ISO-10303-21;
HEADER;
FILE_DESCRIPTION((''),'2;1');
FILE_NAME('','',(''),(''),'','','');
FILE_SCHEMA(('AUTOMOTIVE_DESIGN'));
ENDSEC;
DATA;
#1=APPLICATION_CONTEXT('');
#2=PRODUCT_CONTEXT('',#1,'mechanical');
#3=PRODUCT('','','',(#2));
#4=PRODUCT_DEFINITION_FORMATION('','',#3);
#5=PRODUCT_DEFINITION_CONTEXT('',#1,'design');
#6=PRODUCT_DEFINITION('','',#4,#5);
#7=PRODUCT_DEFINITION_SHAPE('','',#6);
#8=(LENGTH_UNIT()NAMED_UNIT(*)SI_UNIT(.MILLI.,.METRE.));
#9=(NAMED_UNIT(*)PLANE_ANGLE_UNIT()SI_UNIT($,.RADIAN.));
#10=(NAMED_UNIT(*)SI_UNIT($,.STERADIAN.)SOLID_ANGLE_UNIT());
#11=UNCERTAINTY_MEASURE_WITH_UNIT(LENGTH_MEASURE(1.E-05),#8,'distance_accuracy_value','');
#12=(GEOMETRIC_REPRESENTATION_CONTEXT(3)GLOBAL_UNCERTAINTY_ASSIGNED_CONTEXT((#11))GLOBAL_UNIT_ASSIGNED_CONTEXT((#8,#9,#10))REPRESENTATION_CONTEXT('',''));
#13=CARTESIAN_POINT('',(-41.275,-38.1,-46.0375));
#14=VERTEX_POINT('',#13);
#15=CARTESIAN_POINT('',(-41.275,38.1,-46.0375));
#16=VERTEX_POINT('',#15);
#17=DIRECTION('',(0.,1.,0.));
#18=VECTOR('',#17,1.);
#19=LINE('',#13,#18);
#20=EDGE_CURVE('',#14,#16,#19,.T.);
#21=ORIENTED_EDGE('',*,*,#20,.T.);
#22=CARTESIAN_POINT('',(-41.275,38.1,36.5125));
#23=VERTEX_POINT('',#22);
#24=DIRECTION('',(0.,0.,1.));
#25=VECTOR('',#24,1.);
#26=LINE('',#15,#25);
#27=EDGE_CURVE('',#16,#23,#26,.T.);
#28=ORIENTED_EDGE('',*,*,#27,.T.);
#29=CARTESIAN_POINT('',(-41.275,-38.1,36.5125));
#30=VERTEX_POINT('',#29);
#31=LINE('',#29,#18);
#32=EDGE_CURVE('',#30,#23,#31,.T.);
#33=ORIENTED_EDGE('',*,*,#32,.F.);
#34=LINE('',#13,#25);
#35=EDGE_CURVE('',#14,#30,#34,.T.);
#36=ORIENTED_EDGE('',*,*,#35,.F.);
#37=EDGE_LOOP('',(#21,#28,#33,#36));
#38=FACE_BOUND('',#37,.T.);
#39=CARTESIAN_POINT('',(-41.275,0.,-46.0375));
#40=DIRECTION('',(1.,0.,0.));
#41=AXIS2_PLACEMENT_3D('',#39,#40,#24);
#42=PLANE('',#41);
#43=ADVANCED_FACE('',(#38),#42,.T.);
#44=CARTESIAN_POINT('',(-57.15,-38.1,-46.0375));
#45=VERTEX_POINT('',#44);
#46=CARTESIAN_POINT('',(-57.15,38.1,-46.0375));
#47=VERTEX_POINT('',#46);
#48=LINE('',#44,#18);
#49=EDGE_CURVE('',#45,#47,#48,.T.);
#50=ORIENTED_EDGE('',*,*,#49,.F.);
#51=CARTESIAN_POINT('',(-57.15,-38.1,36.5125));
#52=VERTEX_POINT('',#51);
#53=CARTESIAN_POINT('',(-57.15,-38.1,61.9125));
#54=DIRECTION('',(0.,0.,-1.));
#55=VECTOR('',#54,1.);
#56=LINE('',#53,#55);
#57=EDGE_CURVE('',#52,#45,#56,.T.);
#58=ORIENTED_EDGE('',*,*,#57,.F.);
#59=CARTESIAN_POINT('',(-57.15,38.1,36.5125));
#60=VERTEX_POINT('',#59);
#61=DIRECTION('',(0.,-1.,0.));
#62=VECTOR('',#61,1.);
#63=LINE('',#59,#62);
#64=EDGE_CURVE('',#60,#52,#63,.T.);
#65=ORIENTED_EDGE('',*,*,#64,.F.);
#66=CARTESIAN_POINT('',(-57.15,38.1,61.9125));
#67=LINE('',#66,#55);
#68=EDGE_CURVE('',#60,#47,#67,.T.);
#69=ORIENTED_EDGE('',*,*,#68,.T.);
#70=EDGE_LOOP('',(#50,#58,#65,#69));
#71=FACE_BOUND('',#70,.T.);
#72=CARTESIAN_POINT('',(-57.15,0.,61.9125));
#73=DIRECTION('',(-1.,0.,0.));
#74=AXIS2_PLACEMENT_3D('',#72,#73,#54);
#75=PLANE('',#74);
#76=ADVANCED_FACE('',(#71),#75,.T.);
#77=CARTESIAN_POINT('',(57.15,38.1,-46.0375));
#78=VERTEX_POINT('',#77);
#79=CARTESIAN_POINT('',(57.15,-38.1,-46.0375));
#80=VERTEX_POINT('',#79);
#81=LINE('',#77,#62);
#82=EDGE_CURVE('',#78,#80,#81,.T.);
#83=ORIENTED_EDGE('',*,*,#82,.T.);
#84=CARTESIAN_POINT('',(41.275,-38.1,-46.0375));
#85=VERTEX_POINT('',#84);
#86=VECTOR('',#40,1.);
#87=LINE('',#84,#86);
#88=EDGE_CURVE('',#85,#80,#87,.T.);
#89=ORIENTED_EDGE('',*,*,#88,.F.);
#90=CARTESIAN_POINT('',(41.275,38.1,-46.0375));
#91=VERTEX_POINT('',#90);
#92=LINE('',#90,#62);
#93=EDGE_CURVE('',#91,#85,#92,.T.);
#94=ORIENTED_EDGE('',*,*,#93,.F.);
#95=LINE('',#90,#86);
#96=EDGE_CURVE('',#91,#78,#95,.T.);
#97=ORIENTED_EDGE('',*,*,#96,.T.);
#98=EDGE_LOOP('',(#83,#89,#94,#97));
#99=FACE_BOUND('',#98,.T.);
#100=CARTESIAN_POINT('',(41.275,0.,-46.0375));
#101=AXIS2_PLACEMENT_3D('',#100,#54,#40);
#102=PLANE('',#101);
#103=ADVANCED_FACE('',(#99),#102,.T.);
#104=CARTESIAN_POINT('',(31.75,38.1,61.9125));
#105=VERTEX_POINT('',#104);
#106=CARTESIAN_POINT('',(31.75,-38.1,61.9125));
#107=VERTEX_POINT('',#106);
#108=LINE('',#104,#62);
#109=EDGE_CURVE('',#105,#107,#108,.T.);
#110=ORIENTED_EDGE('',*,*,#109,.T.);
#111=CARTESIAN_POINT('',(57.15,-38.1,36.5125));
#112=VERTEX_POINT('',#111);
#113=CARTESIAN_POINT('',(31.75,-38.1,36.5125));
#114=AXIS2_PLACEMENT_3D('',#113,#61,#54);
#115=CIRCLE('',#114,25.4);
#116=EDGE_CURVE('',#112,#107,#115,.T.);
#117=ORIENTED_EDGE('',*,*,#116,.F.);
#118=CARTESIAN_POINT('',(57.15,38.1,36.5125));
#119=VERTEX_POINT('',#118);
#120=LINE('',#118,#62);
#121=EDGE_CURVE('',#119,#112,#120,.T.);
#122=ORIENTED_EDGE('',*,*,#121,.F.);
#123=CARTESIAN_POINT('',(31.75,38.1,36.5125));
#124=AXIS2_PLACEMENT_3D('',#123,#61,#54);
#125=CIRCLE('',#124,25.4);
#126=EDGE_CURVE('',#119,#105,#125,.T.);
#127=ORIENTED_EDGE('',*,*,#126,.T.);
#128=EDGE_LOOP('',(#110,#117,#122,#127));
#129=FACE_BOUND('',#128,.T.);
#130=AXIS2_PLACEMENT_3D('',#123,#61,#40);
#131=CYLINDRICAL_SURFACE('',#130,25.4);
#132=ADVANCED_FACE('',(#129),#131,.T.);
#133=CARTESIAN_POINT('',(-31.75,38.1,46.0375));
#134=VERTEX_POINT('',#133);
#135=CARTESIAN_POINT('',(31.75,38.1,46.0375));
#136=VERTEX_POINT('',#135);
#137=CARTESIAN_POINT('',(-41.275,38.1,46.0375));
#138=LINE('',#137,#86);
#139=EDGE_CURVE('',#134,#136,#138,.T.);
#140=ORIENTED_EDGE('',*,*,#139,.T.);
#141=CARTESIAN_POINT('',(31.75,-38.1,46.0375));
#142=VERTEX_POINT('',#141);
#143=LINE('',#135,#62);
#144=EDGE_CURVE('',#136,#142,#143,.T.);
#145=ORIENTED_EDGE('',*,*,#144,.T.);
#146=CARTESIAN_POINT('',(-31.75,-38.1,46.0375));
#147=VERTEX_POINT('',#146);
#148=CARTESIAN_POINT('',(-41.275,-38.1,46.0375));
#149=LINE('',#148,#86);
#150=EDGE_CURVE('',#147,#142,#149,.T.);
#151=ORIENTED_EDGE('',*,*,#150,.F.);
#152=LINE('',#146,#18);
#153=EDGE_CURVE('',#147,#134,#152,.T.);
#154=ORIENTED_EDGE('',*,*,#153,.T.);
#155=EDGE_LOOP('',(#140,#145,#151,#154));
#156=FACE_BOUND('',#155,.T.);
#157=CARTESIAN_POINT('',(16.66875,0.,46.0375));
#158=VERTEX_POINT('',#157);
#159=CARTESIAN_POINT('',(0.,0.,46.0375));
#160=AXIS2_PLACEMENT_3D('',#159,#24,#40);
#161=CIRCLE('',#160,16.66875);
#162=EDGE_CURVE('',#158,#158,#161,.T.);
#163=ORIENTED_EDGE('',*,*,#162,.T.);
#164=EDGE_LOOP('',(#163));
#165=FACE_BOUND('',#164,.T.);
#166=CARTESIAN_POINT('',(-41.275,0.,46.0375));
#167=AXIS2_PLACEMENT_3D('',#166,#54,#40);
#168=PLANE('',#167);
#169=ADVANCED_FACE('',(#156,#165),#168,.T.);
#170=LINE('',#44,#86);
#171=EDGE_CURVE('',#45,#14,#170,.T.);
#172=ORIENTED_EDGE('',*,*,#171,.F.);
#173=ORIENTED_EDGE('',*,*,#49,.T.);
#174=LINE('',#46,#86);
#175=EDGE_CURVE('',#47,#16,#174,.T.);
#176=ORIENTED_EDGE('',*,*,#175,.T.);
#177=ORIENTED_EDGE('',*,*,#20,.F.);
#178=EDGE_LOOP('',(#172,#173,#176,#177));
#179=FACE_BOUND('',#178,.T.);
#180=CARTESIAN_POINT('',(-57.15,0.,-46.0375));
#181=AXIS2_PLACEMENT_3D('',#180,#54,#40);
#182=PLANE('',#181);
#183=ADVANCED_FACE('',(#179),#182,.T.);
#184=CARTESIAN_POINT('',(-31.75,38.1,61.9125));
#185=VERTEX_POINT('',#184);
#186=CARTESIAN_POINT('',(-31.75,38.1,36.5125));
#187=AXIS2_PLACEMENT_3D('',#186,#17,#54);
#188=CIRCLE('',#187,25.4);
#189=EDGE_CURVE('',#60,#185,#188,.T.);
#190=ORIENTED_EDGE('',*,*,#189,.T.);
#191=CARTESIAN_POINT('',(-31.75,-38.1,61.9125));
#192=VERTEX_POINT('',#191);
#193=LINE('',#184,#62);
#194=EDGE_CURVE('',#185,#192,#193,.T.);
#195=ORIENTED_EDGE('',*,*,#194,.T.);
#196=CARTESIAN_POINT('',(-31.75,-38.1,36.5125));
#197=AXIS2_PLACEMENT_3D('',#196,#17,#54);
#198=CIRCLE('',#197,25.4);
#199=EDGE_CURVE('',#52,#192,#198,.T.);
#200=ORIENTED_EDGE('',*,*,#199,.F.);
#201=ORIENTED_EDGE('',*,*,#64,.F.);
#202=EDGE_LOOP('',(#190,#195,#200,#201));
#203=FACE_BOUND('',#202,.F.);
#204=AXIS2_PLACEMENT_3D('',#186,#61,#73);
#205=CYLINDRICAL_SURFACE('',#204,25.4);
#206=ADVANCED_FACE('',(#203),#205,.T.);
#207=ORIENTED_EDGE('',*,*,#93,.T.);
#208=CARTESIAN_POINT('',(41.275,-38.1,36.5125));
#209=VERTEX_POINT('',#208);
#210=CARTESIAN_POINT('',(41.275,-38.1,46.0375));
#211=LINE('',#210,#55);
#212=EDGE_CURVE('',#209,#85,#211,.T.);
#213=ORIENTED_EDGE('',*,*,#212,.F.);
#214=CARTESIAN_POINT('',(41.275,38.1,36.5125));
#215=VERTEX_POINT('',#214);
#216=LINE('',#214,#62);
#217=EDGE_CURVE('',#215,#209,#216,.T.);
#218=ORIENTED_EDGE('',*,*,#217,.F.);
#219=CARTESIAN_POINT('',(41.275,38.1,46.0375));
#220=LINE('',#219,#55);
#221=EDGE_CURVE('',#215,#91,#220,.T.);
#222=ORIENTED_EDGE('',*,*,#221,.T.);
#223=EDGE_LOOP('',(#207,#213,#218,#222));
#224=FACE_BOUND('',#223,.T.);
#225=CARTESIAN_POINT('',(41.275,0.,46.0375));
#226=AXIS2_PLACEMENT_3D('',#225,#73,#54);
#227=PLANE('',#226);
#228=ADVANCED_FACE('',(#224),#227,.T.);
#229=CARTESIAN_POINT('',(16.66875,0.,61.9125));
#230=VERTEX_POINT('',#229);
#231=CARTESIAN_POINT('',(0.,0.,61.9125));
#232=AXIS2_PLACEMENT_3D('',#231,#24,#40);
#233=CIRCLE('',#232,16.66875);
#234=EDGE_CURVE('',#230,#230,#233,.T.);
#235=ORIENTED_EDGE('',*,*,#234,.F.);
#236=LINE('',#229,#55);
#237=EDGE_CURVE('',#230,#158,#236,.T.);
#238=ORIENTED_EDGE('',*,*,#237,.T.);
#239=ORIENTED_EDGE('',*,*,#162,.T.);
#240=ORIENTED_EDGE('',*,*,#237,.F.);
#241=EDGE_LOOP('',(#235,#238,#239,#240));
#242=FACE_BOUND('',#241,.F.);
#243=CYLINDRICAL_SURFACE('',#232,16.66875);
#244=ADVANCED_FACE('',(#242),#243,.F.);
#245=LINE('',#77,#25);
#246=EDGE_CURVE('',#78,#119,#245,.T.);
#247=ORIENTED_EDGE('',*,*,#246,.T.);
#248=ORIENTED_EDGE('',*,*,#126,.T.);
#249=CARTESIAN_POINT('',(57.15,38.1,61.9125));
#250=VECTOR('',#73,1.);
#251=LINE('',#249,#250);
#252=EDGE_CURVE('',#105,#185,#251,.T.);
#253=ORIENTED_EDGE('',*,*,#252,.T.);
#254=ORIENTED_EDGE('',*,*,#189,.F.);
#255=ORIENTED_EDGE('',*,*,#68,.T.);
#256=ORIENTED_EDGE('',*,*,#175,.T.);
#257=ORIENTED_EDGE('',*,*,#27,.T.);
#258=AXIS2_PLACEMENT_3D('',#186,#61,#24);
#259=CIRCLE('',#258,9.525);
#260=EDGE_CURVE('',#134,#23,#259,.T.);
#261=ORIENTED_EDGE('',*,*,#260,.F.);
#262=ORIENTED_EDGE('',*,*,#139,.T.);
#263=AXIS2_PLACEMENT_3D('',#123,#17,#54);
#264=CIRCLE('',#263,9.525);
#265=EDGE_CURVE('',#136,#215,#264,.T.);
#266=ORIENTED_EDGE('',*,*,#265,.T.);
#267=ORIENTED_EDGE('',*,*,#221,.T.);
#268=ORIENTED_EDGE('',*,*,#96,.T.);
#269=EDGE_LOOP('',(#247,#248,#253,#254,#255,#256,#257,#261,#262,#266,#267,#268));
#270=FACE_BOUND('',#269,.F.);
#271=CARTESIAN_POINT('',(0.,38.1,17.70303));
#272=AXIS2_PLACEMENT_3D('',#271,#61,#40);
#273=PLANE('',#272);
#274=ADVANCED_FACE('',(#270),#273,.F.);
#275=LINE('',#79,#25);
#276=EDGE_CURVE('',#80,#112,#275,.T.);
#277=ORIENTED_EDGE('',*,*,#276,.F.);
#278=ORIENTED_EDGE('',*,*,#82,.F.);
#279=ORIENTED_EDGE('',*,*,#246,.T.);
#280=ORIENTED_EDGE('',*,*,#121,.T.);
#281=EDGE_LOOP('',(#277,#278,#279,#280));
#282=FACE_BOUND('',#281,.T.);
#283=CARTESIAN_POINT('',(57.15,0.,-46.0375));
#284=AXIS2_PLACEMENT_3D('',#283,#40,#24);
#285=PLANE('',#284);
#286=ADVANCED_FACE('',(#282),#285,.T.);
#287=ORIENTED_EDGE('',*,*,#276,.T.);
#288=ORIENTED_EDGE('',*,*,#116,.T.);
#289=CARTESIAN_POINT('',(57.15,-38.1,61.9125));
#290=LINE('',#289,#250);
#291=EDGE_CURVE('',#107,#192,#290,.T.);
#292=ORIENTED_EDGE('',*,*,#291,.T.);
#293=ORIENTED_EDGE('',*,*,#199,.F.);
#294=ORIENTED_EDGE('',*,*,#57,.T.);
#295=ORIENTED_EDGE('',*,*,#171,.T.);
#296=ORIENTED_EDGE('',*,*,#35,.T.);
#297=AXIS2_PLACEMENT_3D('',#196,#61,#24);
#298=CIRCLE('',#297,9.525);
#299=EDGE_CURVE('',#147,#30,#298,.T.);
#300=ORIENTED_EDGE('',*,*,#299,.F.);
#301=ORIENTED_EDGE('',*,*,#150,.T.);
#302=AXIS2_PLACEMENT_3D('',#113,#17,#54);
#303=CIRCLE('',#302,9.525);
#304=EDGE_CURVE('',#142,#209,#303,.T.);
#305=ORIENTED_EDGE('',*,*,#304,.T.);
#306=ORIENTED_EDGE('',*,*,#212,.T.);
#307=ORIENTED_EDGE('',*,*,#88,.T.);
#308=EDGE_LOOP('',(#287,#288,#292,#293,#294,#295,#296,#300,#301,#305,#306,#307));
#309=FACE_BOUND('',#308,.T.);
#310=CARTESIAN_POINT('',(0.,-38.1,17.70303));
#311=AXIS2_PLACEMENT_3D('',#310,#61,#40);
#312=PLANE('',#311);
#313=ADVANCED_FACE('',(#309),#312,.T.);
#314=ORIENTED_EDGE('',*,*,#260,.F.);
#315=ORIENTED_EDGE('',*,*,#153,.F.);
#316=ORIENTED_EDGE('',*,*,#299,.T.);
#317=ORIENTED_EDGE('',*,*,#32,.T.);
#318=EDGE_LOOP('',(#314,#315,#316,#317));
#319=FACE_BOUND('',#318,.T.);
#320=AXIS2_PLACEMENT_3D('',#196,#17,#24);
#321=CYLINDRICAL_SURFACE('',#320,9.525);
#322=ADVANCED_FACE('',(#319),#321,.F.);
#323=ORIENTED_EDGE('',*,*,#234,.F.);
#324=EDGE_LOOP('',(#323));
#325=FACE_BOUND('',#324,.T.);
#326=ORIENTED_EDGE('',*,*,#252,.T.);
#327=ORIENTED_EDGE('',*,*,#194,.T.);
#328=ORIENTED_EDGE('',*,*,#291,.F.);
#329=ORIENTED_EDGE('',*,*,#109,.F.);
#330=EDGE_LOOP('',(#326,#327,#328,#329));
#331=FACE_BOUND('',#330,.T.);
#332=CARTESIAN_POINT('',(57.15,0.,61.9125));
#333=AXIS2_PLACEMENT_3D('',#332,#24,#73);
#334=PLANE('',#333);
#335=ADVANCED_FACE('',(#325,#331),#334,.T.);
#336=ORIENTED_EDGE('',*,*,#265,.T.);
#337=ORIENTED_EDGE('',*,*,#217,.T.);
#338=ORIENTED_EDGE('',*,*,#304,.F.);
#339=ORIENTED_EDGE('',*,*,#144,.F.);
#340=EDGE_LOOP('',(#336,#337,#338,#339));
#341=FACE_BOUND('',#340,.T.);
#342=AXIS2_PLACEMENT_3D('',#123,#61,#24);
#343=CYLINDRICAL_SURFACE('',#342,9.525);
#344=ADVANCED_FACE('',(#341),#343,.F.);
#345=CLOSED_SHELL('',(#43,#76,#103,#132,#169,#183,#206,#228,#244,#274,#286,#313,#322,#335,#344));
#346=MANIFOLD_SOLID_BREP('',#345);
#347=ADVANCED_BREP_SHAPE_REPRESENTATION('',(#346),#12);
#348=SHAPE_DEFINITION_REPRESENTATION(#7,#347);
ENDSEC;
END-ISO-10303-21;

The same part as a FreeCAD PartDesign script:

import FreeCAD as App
import Part
import Sketcher
Q = App.Units.Quantity


def edges_at(feature, points):
    """Names of the edges that pass closest to the given points."""
    edges = feature.Shape.Edges
    near = lambda p: min(range(len(edges)), key=lambda i: edges[i].distToShape(Part.Vertex(*p))[0])
    return sorted({f"Edge{near(p) + 1}" for p in points})


def add_polygon(sketch, points):
    """Adds a closed chain of lines whose ends are joined by coincident constraints."""
    first, n = sketch.GeometryCount, len(points)
    for a, b in zip(points, points[1:] + points[:1]):
        sketch.addGeometry(Part.LineSegment(App.Vector(*a, 0), App.Vector(*b, 0)), False)
    for i in range(n):
        sketch.addConstraint(Sketcher.Constraint("Coincident", first + i, 2, first + (i + 1) % n, 1))

doc = App.newDocument("Part")
params = doc.addObject("Spreadsheet::Sheet", "Params")
for row, (alias, value) in enumerate([
    ("sketch1_width", "4.5 in"),
    ("sketch1_width2", "3.25 in"),
    ("sketch1_height", "4.25 in"),
    ("sketch1_height2", "3.625 in"),
    ("pad1_length", "3 in"),
    ("fillet_radius", "0.375 in"),
    ("fillet2_radius", "1 in"),
    ("sketch2_diameter", "1.3125 in"),
    ("pocket1_length", "1 in"),
], start=1):
    params.set(f"A{row}", alias)
    params.set(f"B{row}", "=" + value)
    params.setAlias(f"B{row}", alias)

body = doc.addObject("PartDesign::Body", "Body")

# Sketch on XZ plane
sketch1 = doc.addObject("Sketcher::SketchObject", "Sketch")
body.addObject(sketch1)
sketch1.AttachmentSupport = (doc.XZ_Plane, [""])
sketch1.MapMode = "FlatFace"
add_polygon(sketch1, [(-41, 46), (41, 46), (41, -46), (57, -46), (57, 62), (-57, 62), (-57, -46), (-41, -46)])  # lines 0-7
sketch1.addConstraint([
    Sketcher.Constraint("Horizontal", 0),
    Sketcher.Constraint("Vertical", 1),
    Sketcher.Constraint("Horizontal", 2),
    Sketcher.Constraint("Vertical", 3),
    Sketcher.Constraint("Horizontal", 4),
    Sketcher.Constraint("Vertical", 5),
    Sketcher.Constraint("Horizontal", 6),
    Sketcher.Constraint("Vertical", 7),
    Sketcher.Constraint("Symmetric", 0, 2, 6, 2, -1, 1),
    Sketcher.Constraint("Symmetric", 2, 2, 5, 2, -2),
    Sketcher.Constraint("DistanceX", 4, 2, 4, 1, Q("4.5 in")),
    Sketcher.Constraint("DistanceX", 0, 1, 0, 2, Q("3.25 in")),
    Sketcher.Constraint("DistanceY", 3, 1, 3, 2, Q("4.25 in")),
    Sketcher.Constraint("DistanceY", 1, 2, 1, 1, Q("3.625 in")),
])
sketch1.setExpression("Constraints[18]", "Params.sketch1_width")
sketch1.setExpression("Constraints[19]", "Params.sketch1_width2")
sketch1.setExpression("Constraints[20]", "Params.sketch1_height")
sketch1.setExpression("Constraints[21]", "Params.sketch1_height2")
pad1 = doc.addObject("PartDesign::Pad", "Pad")
body.addObject(pad1)
pad1.Profile = sketch1
pad1.setExpression("Length", "Params.pad1_length")
pad1.Midplane = True
doc.recompute()

fillet = doc.addObject("PartDesign::Fillet", "Fillet")
body.addObject(fillet)
fillet.Base = (pad1, edges_at(pad1, [(-41.275, 0, 46.038), (41.275, 0, 46.038)]))
fillet.setExpression("Radius", "Params.fillet_radius")
doc.recompute()

fillet2 = doc.addObject("PartDesign::Fillet", "Fillet001")
body.addObject(fillet2)
fillet2.Base = (fillet, edges_at(fillet, [(-57.15, 0, 61.913), (57.15, 0, 61.913)]))
fillet2.setExpression("Radius", "Params.fillet2_radius")

# Sketch on XY plane
sketch2 = doc.addObject("Sketcher::SketchObject", "Sketch001")
body.addObject(sketch2)
sketch2.AttachmentSupport = (doc.XY_Plane, [""])
sketch2.MapMode = "FlatFace"
sketch2.AttachmentOffset = App.Placement(App.Vector(0, 0, 2.4375 * 25.4), App.Rotation())
sketch2.addGeometry(Part.Circle(App.Vector(0, 0, 0), App.Vector(0, 0, 1), 17), False)
sketch2.addConstraint([
    Sketcher.Constraint("Coincident", 0, 3, -1, 1),
    Sketcher.Constraint("Diameter", 0, Q("1.3125 in")),
])
sketch2.setExpression("Constraints[1]", "Params.sketch2_diameter")
pocket1 = doc.addObject("PartDesign::Pocket", "Pocket")
body.addObject(pocket1)
pocket1.Profile = sketch2
pocket1.setExpression("Length", "Params.pocket1_length")

doc.recompute()
